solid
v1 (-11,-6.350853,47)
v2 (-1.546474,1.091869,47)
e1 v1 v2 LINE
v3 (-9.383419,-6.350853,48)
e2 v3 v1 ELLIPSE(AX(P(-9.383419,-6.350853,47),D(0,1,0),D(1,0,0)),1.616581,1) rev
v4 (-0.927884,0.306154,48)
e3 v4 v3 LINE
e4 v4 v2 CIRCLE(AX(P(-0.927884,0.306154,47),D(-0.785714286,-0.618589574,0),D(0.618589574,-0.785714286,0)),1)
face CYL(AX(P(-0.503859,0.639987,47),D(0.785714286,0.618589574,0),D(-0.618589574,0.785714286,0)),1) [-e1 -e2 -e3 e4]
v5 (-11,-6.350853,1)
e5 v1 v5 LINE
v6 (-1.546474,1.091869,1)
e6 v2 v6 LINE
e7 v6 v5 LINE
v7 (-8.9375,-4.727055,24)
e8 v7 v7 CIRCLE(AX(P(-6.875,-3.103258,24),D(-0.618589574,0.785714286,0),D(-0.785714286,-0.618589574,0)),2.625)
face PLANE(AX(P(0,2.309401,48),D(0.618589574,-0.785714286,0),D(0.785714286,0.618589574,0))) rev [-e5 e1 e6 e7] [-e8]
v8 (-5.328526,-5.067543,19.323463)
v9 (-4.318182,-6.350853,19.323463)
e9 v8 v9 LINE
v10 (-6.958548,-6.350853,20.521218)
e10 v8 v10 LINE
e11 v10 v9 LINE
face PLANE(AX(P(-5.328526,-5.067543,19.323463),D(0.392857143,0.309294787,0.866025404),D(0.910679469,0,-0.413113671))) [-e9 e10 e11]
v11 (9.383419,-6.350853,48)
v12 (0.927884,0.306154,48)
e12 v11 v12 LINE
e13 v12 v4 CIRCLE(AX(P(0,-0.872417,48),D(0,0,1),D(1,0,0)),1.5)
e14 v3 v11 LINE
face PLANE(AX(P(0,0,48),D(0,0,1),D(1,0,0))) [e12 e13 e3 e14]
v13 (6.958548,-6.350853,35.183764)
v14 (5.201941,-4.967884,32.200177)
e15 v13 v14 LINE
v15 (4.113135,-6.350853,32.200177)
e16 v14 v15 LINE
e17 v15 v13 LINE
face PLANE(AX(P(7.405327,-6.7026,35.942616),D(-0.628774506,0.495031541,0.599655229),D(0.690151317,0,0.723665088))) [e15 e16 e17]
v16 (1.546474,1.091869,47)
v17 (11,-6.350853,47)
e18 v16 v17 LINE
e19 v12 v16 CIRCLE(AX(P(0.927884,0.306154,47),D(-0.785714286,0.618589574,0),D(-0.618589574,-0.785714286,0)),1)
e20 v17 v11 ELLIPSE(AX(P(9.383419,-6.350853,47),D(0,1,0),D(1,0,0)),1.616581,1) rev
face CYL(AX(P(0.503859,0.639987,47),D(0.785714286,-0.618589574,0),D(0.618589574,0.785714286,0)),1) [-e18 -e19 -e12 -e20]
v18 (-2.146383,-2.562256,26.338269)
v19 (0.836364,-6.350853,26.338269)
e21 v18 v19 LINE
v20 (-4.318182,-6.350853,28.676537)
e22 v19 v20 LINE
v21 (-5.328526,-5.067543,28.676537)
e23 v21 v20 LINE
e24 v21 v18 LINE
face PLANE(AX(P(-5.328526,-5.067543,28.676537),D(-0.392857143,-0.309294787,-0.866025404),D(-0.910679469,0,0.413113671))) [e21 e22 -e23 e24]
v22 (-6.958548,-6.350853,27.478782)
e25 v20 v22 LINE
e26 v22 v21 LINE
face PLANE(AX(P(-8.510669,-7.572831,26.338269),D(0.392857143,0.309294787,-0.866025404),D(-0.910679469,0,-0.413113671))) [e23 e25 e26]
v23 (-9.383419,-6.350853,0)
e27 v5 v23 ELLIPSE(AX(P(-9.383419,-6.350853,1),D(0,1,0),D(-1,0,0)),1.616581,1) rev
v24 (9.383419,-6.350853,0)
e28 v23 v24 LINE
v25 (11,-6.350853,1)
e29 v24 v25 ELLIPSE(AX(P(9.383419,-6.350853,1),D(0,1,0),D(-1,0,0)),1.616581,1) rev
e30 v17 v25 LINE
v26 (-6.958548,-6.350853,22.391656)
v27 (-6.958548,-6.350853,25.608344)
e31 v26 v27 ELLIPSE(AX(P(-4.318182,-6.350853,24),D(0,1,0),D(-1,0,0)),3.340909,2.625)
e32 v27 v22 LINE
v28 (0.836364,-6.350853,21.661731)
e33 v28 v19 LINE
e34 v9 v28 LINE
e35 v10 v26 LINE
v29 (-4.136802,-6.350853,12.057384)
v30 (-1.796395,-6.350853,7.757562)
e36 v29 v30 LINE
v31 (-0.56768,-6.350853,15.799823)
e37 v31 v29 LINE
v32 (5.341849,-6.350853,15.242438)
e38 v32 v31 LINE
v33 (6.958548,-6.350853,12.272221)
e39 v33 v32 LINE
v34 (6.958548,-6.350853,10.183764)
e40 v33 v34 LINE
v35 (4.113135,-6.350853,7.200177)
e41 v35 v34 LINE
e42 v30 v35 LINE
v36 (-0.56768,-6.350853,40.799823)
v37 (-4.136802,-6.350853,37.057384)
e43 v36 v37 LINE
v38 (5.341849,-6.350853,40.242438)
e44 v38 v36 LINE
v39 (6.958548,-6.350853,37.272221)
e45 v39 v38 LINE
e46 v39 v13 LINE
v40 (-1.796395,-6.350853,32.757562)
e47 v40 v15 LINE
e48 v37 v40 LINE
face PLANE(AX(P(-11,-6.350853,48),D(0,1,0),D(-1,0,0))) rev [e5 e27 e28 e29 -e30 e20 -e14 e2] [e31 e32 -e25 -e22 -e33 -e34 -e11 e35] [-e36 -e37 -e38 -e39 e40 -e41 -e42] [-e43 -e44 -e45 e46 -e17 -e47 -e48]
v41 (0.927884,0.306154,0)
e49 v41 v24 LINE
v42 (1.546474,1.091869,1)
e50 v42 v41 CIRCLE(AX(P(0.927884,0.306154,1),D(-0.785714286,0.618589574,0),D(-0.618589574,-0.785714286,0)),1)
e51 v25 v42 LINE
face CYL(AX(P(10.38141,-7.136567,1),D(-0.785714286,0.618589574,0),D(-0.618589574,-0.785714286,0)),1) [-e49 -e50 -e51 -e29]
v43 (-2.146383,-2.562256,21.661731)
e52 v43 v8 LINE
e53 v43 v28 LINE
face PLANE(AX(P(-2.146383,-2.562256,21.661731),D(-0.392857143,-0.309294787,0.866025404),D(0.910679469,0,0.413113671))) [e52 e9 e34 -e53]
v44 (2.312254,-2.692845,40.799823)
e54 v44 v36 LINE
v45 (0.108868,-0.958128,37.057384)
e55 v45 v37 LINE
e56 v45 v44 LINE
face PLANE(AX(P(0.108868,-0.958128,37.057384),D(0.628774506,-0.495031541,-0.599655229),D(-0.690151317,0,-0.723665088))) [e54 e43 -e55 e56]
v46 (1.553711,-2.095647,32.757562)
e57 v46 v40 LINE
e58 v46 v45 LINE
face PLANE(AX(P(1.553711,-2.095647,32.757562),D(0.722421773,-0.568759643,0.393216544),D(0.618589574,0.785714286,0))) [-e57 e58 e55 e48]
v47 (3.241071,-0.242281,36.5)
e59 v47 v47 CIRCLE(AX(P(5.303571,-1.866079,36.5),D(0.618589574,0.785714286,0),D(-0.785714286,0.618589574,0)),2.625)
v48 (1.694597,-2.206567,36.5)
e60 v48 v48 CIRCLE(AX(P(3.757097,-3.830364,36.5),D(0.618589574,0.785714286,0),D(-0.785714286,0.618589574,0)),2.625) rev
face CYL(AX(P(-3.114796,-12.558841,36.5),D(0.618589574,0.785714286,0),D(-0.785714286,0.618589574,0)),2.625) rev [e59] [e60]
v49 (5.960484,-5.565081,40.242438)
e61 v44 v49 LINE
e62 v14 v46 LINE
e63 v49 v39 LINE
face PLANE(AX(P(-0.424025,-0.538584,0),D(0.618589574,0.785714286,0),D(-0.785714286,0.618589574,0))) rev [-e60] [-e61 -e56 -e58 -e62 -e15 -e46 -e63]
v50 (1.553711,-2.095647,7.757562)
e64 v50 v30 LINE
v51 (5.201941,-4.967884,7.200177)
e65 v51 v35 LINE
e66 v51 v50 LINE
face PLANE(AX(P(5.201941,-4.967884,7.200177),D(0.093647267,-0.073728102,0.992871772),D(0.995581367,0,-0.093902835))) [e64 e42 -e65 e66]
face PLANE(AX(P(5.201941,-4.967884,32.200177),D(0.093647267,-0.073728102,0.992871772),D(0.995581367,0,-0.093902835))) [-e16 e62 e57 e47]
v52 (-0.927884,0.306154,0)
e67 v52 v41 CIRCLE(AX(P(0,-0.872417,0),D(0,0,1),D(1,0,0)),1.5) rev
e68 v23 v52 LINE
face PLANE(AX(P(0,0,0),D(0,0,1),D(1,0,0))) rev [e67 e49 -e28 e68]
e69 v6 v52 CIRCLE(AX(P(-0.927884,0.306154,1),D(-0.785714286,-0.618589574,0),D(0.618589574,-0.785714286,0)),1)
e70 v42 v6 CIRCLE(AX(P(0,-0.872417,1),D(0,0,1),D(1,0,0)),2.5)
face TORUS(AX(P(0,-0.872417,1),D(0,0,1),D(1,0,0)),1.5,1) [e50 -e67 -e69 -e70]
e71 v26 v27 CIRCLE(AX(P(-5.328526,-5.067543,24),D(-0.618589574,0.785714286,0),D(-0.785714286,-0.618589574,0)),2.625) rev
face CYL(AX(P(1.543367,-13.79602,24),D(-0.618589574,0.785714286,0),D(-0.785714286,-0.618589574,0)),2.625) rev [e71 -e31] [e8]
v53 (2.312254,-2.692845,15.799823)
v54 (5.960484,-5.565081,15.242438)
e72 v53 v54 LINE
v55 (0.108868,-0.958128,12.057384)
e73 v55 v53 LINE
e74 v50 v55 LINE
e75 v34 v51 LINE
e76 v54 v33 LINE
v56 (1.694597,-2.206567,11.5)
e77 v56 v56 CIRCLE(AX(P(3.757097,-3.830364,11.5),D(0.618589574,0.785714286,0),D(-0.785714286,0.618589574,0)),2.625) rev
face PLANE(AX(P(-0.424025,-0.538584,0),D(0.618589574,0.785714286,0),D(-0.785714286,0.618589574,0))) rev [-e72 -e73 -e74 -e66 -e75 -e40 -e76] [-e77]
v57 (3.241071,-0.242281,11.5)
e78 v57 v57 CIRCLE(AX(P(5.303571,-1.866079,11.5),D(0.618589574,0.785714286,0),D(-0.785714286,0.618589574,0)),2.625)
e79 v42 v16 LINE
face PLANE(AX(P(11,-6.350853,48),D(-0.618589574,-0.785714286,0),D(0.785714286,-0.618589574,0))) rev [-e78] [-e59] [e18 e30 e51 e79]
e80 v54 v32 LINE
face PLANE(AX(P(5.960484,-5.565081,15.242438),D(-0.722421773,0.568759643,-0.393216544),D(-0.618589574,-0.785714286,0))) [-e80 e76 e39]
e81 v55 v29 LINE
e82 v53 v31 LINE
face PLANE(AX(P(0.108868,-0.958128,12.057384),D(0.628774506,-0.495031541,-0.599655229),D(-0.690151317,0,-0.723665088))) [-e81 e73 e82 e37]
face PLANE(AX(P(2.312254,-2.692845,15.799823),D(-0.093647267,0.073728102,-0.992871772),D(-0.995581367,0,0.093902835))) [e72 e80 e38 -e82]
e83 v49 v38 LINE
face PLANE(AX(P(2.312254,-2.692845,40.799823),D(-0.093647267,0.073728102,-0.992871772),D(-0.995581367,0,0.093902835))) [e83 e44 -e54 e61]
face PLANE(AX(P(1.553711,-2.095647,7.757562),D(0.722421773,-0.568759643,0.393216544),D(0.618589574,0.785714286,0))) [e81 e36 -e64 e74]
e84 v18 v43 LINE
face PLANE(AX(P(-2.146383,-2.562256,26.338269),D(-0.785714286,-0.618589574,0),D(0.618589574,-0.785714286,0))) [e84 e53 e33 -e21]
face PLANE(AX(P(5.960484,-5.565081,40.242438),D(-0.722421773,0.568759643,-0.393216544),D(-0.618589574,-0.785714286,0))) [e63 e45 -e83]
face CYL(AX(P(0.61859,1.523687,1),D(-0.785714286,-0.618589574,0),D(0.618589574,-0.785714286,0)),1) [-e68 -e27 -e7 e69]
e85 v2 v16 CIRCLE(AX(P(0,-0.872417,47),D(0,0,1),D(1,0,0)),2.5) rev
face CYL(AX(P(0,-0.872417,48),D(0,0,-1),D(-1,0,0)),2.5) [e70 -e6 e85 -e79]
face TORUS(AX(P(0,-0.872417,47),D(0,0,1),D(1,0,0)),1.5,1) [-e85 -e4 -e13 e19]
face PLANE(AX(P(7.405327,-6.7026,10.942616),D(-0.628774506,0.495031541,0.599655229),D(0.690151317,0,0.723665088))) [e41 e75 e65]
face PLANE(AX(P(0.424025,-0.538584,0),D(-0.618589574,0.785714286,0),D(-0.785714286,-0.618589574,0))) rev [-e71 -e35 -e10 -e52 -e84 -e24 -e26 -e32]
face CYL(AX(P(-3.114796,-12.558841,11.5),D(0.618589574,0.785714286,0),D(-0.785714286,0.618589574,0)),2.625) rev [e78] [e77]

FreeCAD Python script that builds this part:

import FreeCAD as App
import Part
import Sketcher
Q = App.Units.Quantity


def edges_at(feature, points):
    """Names of the edges that pass closest to the given points."""
    edges = feature.Shape.Edges
    near = lambda p: min(range(len(edges)), key=lambda i: edges[i].distToShape(Part.Vertex(*p))[0])
    return sorted({f"Edge{near(p) + 1}" for p in points})

doc = App.newDocument("Part")
body = doc.addObject("PartDesign::Body", "Body")

sketch1 = body.newObject("Sketcher::SketchObject", "Sketch")
sketch1.AttachmentSupport = (doc.getObject("XY_Plane"), [""])
sketch1.MapMode = "FlatFace"
sketch1.addGeometry([
    Part.LineSegment(App.Vector(0, 2.309401, 0), App.Vector(-11, -6.350853, 0)),
    Part.LineSegment(App.Vector(-11, -6.350853, 0), App.Vector(11, -6.350853, 0)),
    Part.LineSegment(App.Vector(11, -6.350853, 0), App.Vector(0, 2.309401, 0)),
], False)
sketch1.addConstraint([
    Sketcher.Constraint("Coincident", 0, 2, 1, 1),
    Sketcher.Constraint("Coincident", 1, 2, 2, 1),
    Sketcher.Constraint("Coincident", 2, 2, 0, 1),
    Sketcher.Constraint("Horizontal", 1),
    Sketcher.Constraint("PointOnObject", 2, 2, -2),
    Sketcher.Constraint("Equal", 0, 2),
    Sketcher.Constraint("DistanceX", 1, 1, 1, 2, Q("22 mm")),
    Sketcher.Constraint("Distance", 0, Q("14 mm")),
    Sketcher.Constraint("DistanceY", -1, 1, 2, 2, Q("2.309401 mm")),
])
pad1 = body.newObject("PartDesign::Pad", "Pad")
pad1.Profile = sketch1
pad1.Length = 48

sketch2 = body.newObject("Sketcher::SketchObject", "Sketch001")
sketch2.Placement = App.Placement(App.Vector(-1.122449, 1.425702, 0), App.Rotation(App.Vector(0.785714286, 0.618589574, 0), App.Vector(0, 0, -1), App.Vector(-0.618589574, 0.785714286, 0), "ZXY"))
sketch2.addGeometry(Part.Circle(App.Vector(-7.321429, -24, 0), App.Vector(0, 0, 1), 2.625), False)
sketch2.addConstraint([
    Sketcher.Constraint("Diameter", 0, Q("5.25 mm")),
    Sketcher.Constraint("DistanceY", 0, 3, -1, 1, Q("24 mm")),
    Sketcher.Constraint("DistanceX", 0, 3, -1, 1, Q("7.321429 mm")),
])
pocket1 = body.newObject("PartDesign::Pocket", "Pocket")
pocket1.Profile = sketch2
pocket1.Type = "ThroughAll"

sketch3 = body.newObject("Sketcher::SketchObject", "Sketch002")
sketch3.Placement = App.Placement(App.Vector(1.122449, 1.425702, 0), App.Rotation(App.Vector(0.785714286, -0.618589574, 0), App.Vector(0, 0, -1), App.Vector(0.618589574, 0.785714286, 0), "ZXY"))
sketch3.addGeometry([
    Part.Circle(App.Vector(5.321429, -11.5, 0), App.Vector(0, 0, 1), 2.625),
    Part.Circle(App.Vector(5.321429, -36.5, 0), App.Vector(0, 0, 1), 2.625),
], False)
sketch3.addConstraint([
    Sketcher.Constraint("Equal", 0, 1),
    Sketcher.Constraint("Vertical", 0, 3, 1, 3),
    Sketcher.Constraint("Diameter", 0, Q("5.25 mm")),
    Sketcher.Constraint("DistanceY", 1, 3, 0, 3, Q("25 mm")),
    Sketcher.Constraint("DistanceY", 0, 3, -1, 1, Q("11.5 mm")),
    Sketcher.Constraint("DistanceX", -1, 1, 0, 3, Q("5.321429 mm")),
])
pocket2 = body.newObject("PartDesign::Pocket", "Pocket001")
pocket2.Profile = sketch3
pocket2.Type = "ThroughAll"
doc.recompute()

fillet = body.newObject("PartDesign::Fillet", "Fillet")
fillet.Base = (pocket2, edges_at(pocket2, [(0, 2.309, 24)]))
fillet.Radius = 2.5

sketch4 = body.newObject("Sketcher::SketchObject", "Sketch003")
sketch4.Placement = App.Placement(App.Vector(-8.156395, -10.360013, 0), App.Rotation(App.Vector(0.785714286, -0.618589574, 0), App.Vector(0, 0, -1), App.Vector(0.618589574, 0.785714286, 0), "ZXY"))
sketch4.addGeometry([
    Part.LineSegment(App.Vector(7.16032, -7.200177, 0), App.Vector(2.517119, -7.757562, 0)),
    Part.LineSegment(App.Vector(2.517119, -7.757562, 0), App.Vector(0.678227, -12.057384, 0)),
    Part.LineSegment(App.Vector(0.678227, -12.057384, 0), App.Vector(3.482537, -15.799823, 0)),
    Part.LineSegment(App.Vector(3.482537, -15.799823, 0), App.Vector(8.125739, -15.242438, 0)),
    Part.LineSegment(App.Vector(8.125739, -15.242438, 0), App.Vector(9.96463, -10.942616, 0)),
    Part.LineSegment(App.Vector(9.96463, -10.942616, 0), App.Vector(7.16032, -7.200177, 0)),
    Part.LineSegment(App.Vector(7.16032, -32.200177, 0), App.Vector(2.517119, -32.757562, 0)),
    Part.LineSegment(App.Vector(2.517119, -32.757562, 0), App.Vector(0.678227, -37.057384, 0)),
    Part.LineSegment(App.Vector(0.678227, -37.057384, 0), App.Vector(3.482537, -40.799823, 0)),
    Part.LineSegment(App.Vector(3.482537, -40.799823, 0), App.Vector(8.125739, -40.242438, 0)),
    Part.LineSegment(App.Vector(8.125739, -40.242438, 0), App.Vector(9.96463, -35.942616, 0)),
    Part.LineSegment(App.Vector(9.96463, -35.942616, 0), App.Vector(7.16032, -32.200177, 0)),
], False)
sketch4.addConstraint([
    Sketcher.Constraint("Coincident", 0, 2, 1, 1),
    Sketcher.Constraint("Coincident", 1, 2, 2, 1),
    Sketcher.Constraint("Coincident", 2, 2, 3, 1),
    Sketcher.Constraint("Coincident", 3, 2, 4, 1),
    Sketcher.Constraint("Coincident", 4, 2, 5, 1),
    Sketcher.Constraint("Coincident", 5, 2, 0, 1),
    Sketcher.Constraint("Coincident", 6, 2, 7, 1),
    Sketcher.Constraint("Coincident", 7, 2, 8, 1),
    Sketcher.Constraint("Coincident", 8, 2, 9, 1),
    Sketcher.Constraint("Coincident", 9, 2, 10, 1),
    Sketcher.Constraint("Coincident", 10, 2, 11, 1),
    Sketcher.Constraint("Coincident", 11, 2, 6, 1),
    Sketcher.Constraint("Parallel", 0, 3),
    Sketcher.Constraint("Parallel", 1, 4),
    Sketcher.Constraint("Parallel", 2, 5),
    Sketcher.Constraint("Parallel", 3, 6),
    Sketcher.Constraint("Parallel", 4, 7),
    Sketcher.Constraint("Parallel", 5, 8),
    Sketcher.Constraint("Parallel", 6, 9),
    Sketcher.Constraint("Parallel", 7, 10),
    Sketcher.Constraint("Parallel", 8, 11),
    Sketcher.Constraint("Vertical", 0, 2, 6, 2),
    Sketcher.Constraint("Vertical", 1, 2, 7, 2),
    Sketcher.Constraint("Vertical", 2, 2, 8, 2),
    Sketcher.Constraint("Vertical", 3, 2, 9, 2),
    Sketcher.Constraint("Vertical", 4, 2, 10, 2),
    Sketcher.Constraint("Equal", 0, 1),
    Sketcher.Constraint("Equal", 1, 2),
    Sketcher.Constraint("Equal", 2, 3),
    Sketcher.Constraint("DistanceY", 6, 2, 0, 2, Q("25 mm")),
    Sketcher.Constraint("DistanceX", 2, 2, 3, 2, Q("4.643202 mm")),
    Sketcher.Constraint("DistanceX", -1, 1, 0, 2, Q("2.517119 mm")),
    Sketcher.Constraint("DistanceY", 0, 2, -1, 1, Q("7.757562 mm")),
    Sketcher.Constraint("DistanceX", -1, 1, 3, 2, Q("8.125739 mm")),
    Sketcher.Constraint("DistanceY", 3, 2, -1, 1, Q("15.242438 mm")),
    Sketcher.Constraint("DistanceX", -1, 1, 4, 2, Q("9.96463 mm")),
])
pocket3 = body.newObject("PartDesign::Pocket", "Pocket002")
pocket3.Profile = sketch4
pocket3.Length = 12.5
pocket3.Reversed = True

sketch5 = body.newObject("Sketcher::SketchObject", "Sketch004")
sketch5.Placement = App.Placement(App.Vector(8.156395, -10.360013, 0), App.Rotation(App.Vector(0.785714286, 0.618589574, 0), App.Vector(0, 0, -1), App.Vector(-0.618589574, 0.785714286, 0), "ZXY"))
sketch5.addGeometry([
    Part.LineSegment(App.Vector(-7.321429, -19.323463, 0), App.Vector(-11.371429, -21.661731, 0)),
    Part.LineSegment(App.Vector(-11.371429, -21.661731, 0), App.Vector(-11.371429, -26.338269, 0)),
    Part.LineSegment(App.Vector(-11.371429, -26.338269, 0), App.Vector(-7.321429, -28.676537, 0)),
    Part.LineSegment(App.Vector(-7.321429, -28.676537, 0), App.Vector(-3.271429, -26.338269, 0)),
    Part.LineSegment(App.Vector(-3.271429, -26.338269, 0), App.Vector(-3.271429, -21.661731, 0)),
    Part.LineSegment(App.Vector(-3.271429, -21.661731, 0), App.Vector(-7.321429, -19.323463, 0)),
], False)
sketch5.addConstraint([
    Sketcher.Constraint("Coincident", 0, 2, 1, 1),
    Sketcher.Constraint("Coincident", 1, 2, 2, 1),
    Sketcher.Constraint("Coincident", 2, 2, 3, 1),
    Sketcher.Constraint("Coincident", 3, 2, 4, 1),
    Sketcher.Constraint("Coincident", 4, 2, 5, 1),
    Sketcher.Constraint("Coincident", 5, 2, 0, 1),
    Sketcher.Constraint("Vertical", 1),
    Sketcher.Constraint("Vertical", 4),
    Sketcher.Constraint("Parallel", 0, 3),
    Sketcher.Constraint("Parallel", 2, 5),
    Sketcher.Constraint("Horizontal", 1, 2, 3, 2),
    Sketcher.Constraint("Horizontal", 0, 2, 4, 2),
    Sketcher.Constraint("Vertical", 2, 2, 5, 2),
    Sketcher.Constraint("Angle", 0, Q("-150 deg")),
    Sketcher.Constraint("DistanceX", 1, 2, 3, 2, Q("8.1 mm")),
    Sketcher.Constraint("DistanceY", 1, 2, 1, 1, Q("4.676537 mm")),
    Sketcher.Constraint("DistanceX", 0, 2, -1, 1, Q("11.371429 mm")),
    Sketcher.Constraint("DistanceY", 0, 2, -1, 1, Q("21.661731 mm")),
])
pocket4 = body.newObject("PartDesign::Pocket", "Pocket003")
pocket4.Profile = sketch5
pocket4.Length = 12.5
pocket4.Reversed = True
doc.recompute()

fillet2 = body.newObject("PartDesign::Fillet", "Fillet001")
fillet2.Base = (pocket4, edges_at(pocket4, [(-6.273, -2.629, 0), (0, 1.628, 0), (6.273, -2.629, 0)]))
fillet2.Radius = 1
doc.recompute()

fillet3 = body.newObject("PartDesign::Fillet", "Fillet002")
fillet3.Base = (fillet2, edges_at(fillet2, [(-6.273, -2.629, 48), (0, 1.628, 48), (6.273, -2.629, 48)]))
fillet3.Radius = 1

doc.recompute()
